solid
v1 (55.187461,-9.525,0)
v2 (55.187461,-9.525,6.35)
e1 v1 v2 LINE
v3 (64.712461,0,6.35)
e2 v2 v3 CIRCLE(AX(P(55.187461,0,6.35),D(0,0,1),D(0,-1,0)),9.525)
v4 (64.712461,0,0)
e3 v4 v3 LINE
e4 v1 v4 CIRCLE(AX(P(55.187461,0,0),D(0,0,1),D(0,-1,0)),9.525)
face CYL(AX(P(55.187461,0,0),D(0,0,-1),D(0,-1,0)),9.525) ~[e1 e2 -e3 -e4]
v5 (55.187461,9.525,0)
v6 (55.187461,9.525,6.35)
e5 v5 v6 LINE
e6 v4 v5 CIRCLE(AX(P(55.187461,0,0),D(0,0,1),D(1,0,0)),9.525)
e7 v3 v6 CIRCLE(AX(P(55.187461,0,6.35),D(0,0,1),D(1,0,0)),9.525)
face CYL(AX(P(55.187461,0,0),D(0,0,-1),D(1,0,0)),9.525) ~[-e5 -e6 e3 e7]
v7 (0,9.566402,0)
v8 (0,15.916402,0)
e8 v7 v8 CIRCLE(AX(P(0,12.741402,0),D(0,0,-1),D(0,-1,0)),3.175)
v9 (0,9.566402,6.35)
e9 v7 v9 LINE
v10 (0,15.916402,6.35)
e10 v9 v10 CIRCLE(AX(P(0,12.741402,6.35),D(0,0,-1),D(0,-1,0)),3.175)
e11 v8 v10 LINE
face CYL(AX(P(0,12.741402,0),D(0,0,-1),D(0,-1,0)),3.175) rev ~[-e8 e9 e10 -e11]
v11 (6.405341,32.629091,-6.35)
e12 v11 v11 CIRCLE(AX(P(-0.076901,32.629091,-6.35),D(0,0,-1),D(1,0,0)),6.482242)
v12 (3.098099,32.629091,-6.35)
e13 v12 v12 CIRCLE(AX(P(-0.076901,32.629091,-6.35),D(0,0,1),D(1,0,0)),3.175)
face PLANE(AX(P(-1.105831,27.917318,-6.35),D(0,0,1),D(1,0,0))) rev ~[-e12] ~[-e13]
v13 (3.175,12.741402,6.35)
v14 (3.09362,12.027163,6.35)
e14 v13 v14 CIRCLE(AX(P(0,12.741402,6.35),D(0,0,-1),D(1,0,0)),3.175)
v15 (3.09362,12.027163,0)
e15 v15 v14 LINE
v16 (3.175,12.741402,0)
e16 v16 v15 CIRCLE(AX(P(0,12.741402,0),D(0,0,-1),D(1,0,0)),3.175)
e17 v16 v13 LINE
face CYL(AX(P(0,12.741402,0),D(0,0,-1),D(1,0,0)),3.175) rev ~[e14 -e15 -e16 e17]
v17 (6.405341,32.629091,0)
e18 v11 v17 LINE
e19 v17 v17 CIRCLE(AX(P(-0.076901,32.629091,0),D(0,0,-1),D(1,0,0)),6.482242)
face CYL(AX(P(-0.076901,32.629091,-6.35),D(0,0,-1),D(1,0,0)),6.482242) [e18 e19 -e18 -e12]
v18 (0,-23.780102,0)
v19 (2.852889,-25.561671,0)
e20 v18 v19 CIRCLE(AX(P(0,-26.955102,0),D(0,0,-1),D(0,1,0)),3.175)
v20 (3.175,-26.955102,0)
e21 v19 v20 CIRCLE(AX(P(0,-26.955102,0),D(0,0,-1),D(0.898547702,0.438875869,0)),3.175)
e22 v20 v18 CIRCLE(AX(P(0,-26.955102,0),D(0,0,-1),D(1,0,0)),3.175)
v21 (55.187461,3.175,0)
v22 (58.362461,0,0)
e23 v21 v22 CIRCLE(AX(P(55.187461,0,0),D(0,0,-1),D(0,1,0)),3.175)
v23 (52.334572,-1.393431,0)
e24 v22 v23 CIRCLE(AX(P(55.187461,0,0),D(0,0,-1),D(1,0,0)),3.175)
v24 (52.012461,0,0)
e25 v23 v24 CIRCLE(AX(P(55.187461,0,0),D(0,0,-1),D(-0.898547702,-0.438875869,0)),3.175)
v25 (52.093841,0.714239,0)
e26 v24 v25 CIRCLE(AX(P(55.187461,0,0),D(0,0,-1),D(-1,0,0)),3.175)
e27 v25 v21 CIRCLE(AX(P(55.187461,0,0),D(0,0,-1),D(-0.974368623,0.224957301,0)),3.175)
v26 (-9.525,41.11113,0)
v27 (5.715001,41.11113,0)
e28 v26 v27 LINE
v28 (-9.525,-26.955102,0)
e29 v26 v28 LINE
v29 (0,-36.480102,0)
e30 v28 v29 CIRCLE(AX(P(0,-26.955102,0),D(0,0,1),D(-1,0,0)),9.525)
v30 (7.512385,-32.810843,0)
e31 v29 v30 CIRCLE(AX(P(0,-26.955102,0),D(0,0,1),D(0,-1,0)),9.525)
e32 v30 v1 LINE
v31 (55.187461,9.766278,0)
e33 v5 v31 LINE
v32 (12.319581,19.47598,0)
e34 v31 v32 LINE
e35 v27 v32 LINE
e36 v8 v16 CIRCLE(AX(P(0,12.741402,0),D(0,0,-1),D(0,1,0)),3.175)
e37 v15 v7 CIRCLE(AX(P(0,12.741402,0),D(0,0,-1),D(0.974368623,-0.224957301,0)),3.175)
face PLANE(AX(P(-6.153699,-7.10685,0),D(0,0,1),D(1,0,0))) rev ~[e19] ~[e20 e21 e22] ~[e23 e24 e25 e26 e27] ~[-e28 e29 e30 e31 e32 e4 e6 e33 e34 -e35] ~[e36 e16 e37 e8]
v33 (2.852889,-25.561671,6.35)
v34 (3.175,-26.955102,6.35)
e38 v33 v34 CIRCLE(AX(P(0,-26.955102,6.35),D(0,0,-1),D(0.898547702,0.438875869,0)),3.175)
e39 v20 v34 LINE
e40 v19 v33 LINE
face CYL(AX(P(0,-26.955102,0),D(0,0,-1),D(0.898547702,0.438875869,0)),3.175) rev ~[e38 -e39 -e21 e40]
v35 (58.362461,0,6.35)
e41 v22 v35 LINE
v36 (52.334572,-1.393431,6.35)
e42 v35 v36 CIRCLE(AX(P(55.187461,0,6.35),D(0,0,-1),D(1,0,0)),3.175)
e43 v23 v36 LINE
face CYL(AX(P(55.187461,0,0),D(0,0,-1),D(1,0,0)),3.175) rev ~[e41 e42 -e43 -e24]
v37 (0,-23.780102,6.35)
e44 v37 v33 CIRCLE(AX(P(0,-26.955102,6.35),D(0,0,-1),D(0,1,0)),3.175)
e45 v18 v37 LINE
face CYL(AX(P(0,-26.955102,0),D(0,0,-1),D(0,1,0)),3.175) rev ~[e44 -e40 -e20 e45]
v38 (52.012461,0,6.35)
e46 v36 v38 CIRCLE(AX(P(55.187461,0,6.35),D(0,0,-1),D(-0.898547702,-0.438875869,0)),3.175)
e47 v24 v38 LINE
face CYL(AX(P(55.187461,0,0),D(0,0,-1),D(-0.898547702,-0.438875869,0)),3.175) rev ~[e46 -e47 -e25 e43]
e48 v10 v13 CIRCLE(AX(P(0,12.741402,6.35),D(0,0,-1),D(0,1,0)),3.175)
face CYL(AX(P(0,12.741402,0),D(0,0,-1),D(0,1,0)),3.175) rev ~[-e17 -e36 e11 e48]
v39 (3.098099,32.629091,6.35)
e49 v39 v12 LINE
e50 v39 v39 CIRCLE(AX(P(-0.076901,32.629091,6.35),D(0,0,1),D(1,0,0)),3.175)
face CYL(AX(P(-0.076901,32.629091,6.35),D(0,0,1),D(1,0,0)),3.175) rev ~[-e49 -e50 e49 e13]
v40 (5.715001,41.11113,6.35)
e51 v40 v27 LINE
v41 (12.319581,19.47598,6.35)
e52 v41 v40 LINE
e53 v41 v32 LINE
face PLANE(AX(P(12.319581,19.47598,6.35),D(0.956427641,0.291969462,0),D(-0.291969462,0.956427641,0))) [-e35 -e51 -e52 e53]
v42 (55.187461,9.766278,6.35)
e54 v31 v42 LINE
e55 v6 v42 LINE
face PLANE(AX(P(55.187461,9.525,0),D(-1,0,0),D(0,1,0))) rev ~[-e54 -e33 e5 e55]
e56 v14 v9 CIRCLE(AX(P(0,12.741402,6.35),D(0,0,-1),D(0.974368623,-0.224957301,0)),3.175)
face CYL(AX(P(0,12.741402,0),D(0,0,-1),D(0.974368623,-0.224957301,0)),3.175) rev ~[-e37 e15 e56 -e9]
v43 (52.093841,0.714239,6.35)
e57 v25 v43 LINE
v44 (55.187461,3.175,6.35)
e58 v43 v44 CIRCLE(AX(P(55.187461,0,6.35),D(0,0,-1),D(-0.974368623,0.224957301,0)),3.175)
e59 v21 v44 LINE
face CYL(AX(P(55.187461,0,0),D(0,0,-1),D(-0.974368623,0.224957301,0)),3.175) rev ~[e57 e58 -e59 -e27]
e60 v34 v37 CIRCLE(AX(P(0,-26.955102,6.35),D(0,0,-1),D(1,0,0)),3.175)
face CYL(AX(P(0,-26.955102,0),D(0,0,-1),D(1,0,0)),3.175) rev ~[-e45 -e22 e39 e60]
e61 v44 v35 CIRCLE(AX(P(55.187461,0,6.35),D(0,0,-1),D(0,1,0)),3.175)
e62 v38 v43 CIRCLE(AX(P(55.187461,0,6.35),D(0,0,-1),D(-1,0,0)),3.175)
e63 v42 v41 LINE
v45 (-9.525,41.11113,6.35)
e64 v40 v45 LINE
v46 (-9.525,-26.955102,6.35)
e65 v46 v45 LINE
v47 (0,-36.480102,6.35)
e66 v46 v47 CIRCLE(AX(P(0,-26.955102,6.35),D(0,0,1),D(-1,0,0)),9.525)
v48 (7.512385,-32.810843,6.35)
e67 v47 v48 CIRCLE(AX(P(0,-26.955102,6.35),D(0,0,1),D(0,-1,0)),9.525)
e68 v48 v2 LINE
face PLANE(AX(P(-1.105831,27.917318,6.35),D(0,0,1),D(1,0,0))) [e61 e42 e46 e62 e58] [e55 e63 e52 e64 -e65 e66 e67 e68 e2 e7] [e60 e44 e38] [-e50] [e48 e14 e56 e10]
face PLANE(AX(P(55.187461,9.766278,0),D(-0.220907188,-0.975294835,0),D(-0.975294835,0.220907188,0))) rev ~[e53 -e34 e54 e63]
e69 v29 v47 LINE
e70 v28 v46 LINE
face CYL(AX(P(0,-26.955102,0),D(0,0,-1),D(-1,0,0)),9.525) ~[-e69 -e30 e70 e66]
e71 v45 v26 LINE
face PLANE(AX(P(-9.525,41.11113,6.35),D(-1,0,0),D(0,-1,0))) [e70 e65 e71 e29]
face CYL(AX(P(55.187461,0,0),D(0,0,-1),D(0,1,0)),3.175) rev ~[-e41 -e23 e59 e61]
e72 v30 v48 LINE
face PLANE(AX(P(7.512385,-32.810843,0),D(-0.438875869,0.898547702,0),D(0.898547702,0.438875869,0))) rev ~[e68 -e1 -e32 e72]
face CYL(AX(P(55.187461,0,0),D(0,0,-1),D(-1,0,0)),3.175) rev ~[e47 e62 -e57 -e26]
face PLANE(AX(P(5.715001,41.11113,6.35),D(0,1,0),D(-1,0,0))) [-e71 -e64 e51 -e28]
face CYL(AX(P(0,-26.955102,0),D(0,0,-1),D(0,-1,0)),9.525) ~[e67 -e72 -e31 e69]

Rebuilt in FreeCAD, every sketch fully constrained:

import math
import FreeCAD as App
import Part
import Sketcher
Q = App.Units.Quantity

doc = App.newDocument("Part")
body = doc.addObject("PartDesign::Body", "Body")

# Sketch on XY plane
sketch1 = body.newObject("Sketcher::SketchObject", "Sketch")
sketch1.AttachmentSupport = (doc.getObject("XY_Plane"), [""])
sketch1.MapMode = "FlatFace"
sketch1.addGeometry([
    Part.LineSegment(App.Vector(55.19, 9.53, 0), App.Vector(55.19, 9.77, 0)),  # 0
    Part.LineSegment(App.Vector(55.19, 9.77, 0), App.Vector(4.1, 21.34, 0)),  # 1
    Part.ArcOfCircle(Part.Circle(App.Vector(0, 12.74, 0), App.Vector(0, 0, 1), 9.53), math.radians(64), math.radians(90)),  # 2
    Part.ArcOfCircle(Part.Circle(App.Vector(0, 12.74, 0), App.Vector(0, 0, 1), 9.53), math.radians(90), math.radians(180)),  # 3
    Part.LineSegment(App.Vector(-9.53, 12.74, 0), App.Vector(-9.53, -26.96, 0)),  # 4
    Part.ArcOfCircle(Part.Circle(App.Vector(0, -26.96, 0), App.Vector(0, 0, 1), 9.53), math.radians(180), math.radians(270)),  # 5
    Part.ArcOfCircle(Part.Circle(App.Vector(0, -26.96, 0), App.Vector(0, 0, 1), 9.53), math.radians(-90), math.radians(-38)),  # 6
    Part.LineSegment(App.Vector(7.51, -32.81, 0), App.Vector(55.19, -9.53, 0)),  # 7
    Part.ArcOfCircle(Part.Circle(App.Vector(55.19, 0, 0), App.Vector(0, 0, 1), 9.53), math.radians(-90), math.radians(0)),  # 8
    Part.ArcOfCircle(Part.Circle(App.Vector(55.19, 0, 0), App.Vector(0, 0, 1), 9.53), math.radians(0), math.radians(90)),  # 9
    Part.ArcOfCircle(Part.Circle(App.Vector(0, 12.74, 0), App.Vector(0, 0, 1), 3.17), math.radians(90), math.radians(270)),  # 10
    Part.ArcOfCircle(Part.Circle(App.Vector(0, 12.74, 0), App.Vector(0, 0, 1), 3.17), math.radians(0), math.radians(90)),  # 11
    Part.ArcOfCircle(Part.Circle(App.Vector(0, 12.74, 0), App.Vector(0, 0, 1), 3.17), math.radians(-13), math.radians(0)),  # 12
    Part.ArcOfCircle(Part.Circle(App.Vector(0, 12.74, 0), App.Vector(0, 0, 1), 3.17), math.radians(-90), math.radians(-13)),  # 13
    Part.ArcOfCircle(Part.Circle(App.Vector(55.19, 0, 0), App.Vector(0, 0, 1), 3.17), math.radians(90), math.radians(167)),  # 14
    Part.ArcOfCircle(Part.Circle(App.Vector(55.19, 0, 0), App.Vector(0, 0, 1), 3.17), math.radians(0), math.radians(90)),  # 15
    Part.ArcOfCircle(Part.Circle(App.Vector(55.19, 0, 0), App.Vector(0, 0, 1), 3.17), math.radians(-154), math.radians(0)),  # 16
    Part.ArcOfCircle(Part.Circle(App.Vector(55.19, 0, 0), App.Vector(0, 0, 1), 3.17), math.radians(180), math.radians(206)),  # 17
    Part.ArcOfCircle(Part.Circle(App.Vector(55.19, 0, 0), App.Vector(0, 0, 1), 3.17), math.radians(167), math.radians(180)),  # 18
    Part.ArcOfCircle(Part.Circle(App.Vector(0, -26.96, 0), App.Vector(0, 0, 1), 3.17), math.radians(0), math.radians(26)),  # 19
    Part.ArcOfCircle(Part.Circle(App.Vector(0, -26.96, 0), App.Vector(0, 0, 1), 3.17), math.radians(90), math.radians(360)),  # 20
    Part.ArcOfCircle(Part.Circle(App.Vector(0, -26.96, 0), App.Vector(0, 0, 1), 3.17), math.radians(26), math.radians(90)),  # 21
], False)
sketch1.addConstraint([
    Sketcher.Constraint("Coincident", 0, 2, 1, 1),
    Sketcher.Constraint("Coincident", 1, 2, 2, 1),
    Sketcher.Constraint("Tangent", 2, 2, 3, 1),
    Sketcher.Constraint("Tangent", 3, 2, 4, 1),
    Sketcher.Constraint("Tangent", 4, 2, 5, 1),
    Sketcher.Constraint("Tangent", 5, 2, 6, 1),
    Sketcher.Constraint("Coincident", 6, 2, 7, 1),
    Sketcher.Constraint("Coincident", 7, 2, 8, 1),
    Sketcher.Constraint("Tangent", 8, 2, 9, 1),
    Sketcher.Constraint("Coincident", 9, 2, 0, 1),
    Sketcher.Constraint("Tangent", 10, 1, 11, 2),
    Sketcher.Constraint("Tangent", 11, 1, 12, 2),
    Sketcher.Constraint("Tangent", 12, 1, 13, 2),
    Sketcher.Constraint("Tangent", 13, 1, 10, 2),
    Sketcher.Constraint("Tangent", 14, 1, 15, 2),
    Sketcher.Constraint("Tangent", 15, 1, 16, 2),
    Sketcher.Constraint("Tangent", 16, 1, 17, 2),
    Sketcher.Constraint("Tangent", 17, 1, 18, 2),
    Sketcher.Constraint("Tangent", 18, 1, 14, 2),
    Sketcher.Constraint("Tangent", 19, 1, 20, 2),
    Sketcher.Constraint("Tangent", 20, 1, 21, 2),
    Sketcher.Constraint("Tangent", 21, 1, 19, 2),
    Sketcher.Constraint("Vertical", 0),
    Sketcher.Constraint("Vertical", 4),
    Sketcher.Constraint("Coincident", 10, 3, 2, 3),
    Sketcher.Constraint("Coincident", 14, 3, 8, 3),
    Sketcher.Constraint("Coincident", 16, 3, 8, 3),
    Sketcher.Constraint("Coincident", 19, 3, 5, 3),
    Sketcher.Constraint("Equal", 2, 3),
    Sketcher.Constraint("Equal", 3, 5),
    Sketcher.Constraint("Equal", 5, 6),
    Sketcher.Constraint("Equal", 6, 8),
    Sketcher.Constraint("Equal", 8, 9),
    Sketcher.Constraint("Equal", 10, 11),
    Sketcher.Constraint("Equal", 13, 14),
    Sketcher.Constraint("Equal", 18, 19),
    Sketcher.Constraint("Symmetric", 7, 2, 9, 2, -1),
    Sketcher.Constraint("PointOnObject", 2, 3, -2),
    Sketcher.Constraint("PointOnObject", 2, 2, -2),
    Sketcher.Constraint("PointOnObject", 5, 2, -2),
    Sketcher.Constraint("PointOnObject", 8, 2, -1),
    Sketcher.Constraint("PointOnObject", 10, 1, -2),
    Sketcher.Constraint("PointOnObject", 13, 1, -2),
    Sketcher.Constraint("PointOnObject", 15, 1, -1),
    Sketcher.Constraint("PointOnObject", 17, 1, -1),
    Sketcher.Constraint("PointOnObject", 20, 1, -2),
    Sketcher.Constraint("Horizontal", 3, 2, 11, 1),
    Sketcher.Constraint("Horizontal", 4, 2, 19, 1),
    Sketcher.Constraint("Vertical", 18, 3, 0, 2),
    Sketcher.Constraint("Vertical", 9, 2, 14, 1),
    Sketcher.Constraint("Radius", 2, Q("0.375 in")),
    Sketcher.Constraint("Radius", 10, Q("0.125 in")),
    Sketcher.Constraint("DistanceY", 12, 3, 1, 2, Q("0.3384 in")),
    Sketcher.Constraint("DistanceY", -1, 1, 2, 3, 12.741402),
    Sketcher.Constraint("Distance", 1, 52.377131),
    Sketcher.Constraint("DistanceY", 0, 1, 0, 2, 0.241278),
    Sketcher.Constraint("DistanceY", 4, 2, 4, 1, 39.696504),
    Sketcher.Constraint("DistanceX", -1, 1, 12, 1, 3.09362),
    Sketcher.Constraint("DistanceY", 16, 1, -1, 1, 1.393431),
    Sketcher.Constraint("DistanceX", -1, 1, 18, 1, 52.093841),
    Sketcher.Constraint("DistanceX", -1, 1, 21, 1, 2.852889),
    Sketcher.Constraint("DistanceY", 5, 2, 6, 2, 3.669259),
])
pad1 = body.newObject("PartDesign::Pad", "Pad")
pad1.Profile = sketch1
pad1.Length = Q("0.25 in")

# Sketch on XY plane
sketch2 = body.newObject("Sketcher::SketchObject", "Sketch001")
sketch2.AttachmentSupport = (doc.getObject("XY_Plane"), [""])
sketch2.MapMode = "FlatFace"
sketch2.AttachmentOffset = App.Placement(App.Vector(0, 0, 0.25 * 25.4), App.Rotation())
sketch2.addGeometry([
    Part.LineSegment(App.Vector(-9.5, 41.1, 0), App.Vector(-9.5, 12.7, 0)),  # 0
    Part.ArcOfCircle(Part.Circle(App.Vector(0, 12.7, 0), App.Vector(0, 0, 1), 9.5), math.radians(64), math.radians(180)),  # 1
    Part.LineSegment(App.Vector(4.1, 21.3, 0), App.Vector(12.3, 19.5, 0)),  # 2
    Part.LineSegment(App.Vector(12.3, 19.5, 0), App.Vector(5.7, 41.1, 0)),  # 3
    Part.LineSegment(App.Vector(5.7, 41.1, 0), App.Vector(-9.5, 41.1, 0)),  # 4
    Part.Circle(App.Vector(-0.1, 32.6, 0), App.Vector(0, 0, 1), 3.2),  # 5
], False)
sketch2.addConstraint([
    Sketcher.Constraint("Tangent", 0, 2, 1, 2),
    Sketcher.Constraint("Coincident", 1, 1, 2, 1),
    Sketcher.Constraint("Coincident", 2, 2, 3, 1),
    Sketcher.Constraint("Coincident", 3, 2, 4, 1),
    Sketcher.Constraint("Coincident", 4, 2, 0, 1),
    Sketcher.Constraint("Vertical", 0),
    Sketcher.Constraint("Horizontal", 4),
    Sketcher.Constraint("PointOnObject", 1, 3, -2),
    Sketcher.Constraint("Diameter", 5, Q("0.25 in")),
    Sketcher.Constraint("DistanceX", 4, 2, 4, 1, Q("0.6 in")),
    Sketcher.Constraint("Radius", 1, Q("0.375 in")),
    Sketcher.Constraint("DistanceY", 1, 3, 1, 1, Q("0.3384 in")),
    Sketcher.Constraint("DistanceY", 0, 2, 0, 1, 28.369728),
    Sketcher.Constraint("DistanceX", 5, 3, -1, 1, 0.076901),
    Sketcher.Constraint("Distance", 3, 22.620791),
    Sketcher.Constraint("DistanceY", -1, 1, 5, 3, 32.629091),
    Sketcher.Constraint("DistanceX", -1, 1, 2, 2, 12.319581),
    Sketcher.Constraint("DistanceY", -1, 1, 2, 2, 19.47598),
])
pad2 = body.newObject("PartDesign::Pad", "Pad001")
pad2.Profile = sketch2
pad2.Length = Q("0.5 in")
pad2.Reversed = True

# Sketch on XY plane
sketch3 = body.newObject("Sketcher::SketchObject", "Sketch002")
sketch3.AttachmentSupport = (doc.getObject("XY_Plane"), [""])
sketch3.MapMode = "FlatFace"
sketch3.AttachmentOffset = App.Placement(App.Vector(0, 0, -0.25 * 25.4), App.Rotation())
sketch3.addGeometry([
    Part.LineSegment(App.Vector(-10, 41, 0), App.Vector(6, 41, 0)),  # 0
    Part.LineSegment(App.Vector(6, 41, 0), App.Vector(12, 19, 0)),  # 1
    Part.LineSegment(App.Vector(12, 19, 0), App.Vector(4, 21, 0)),  # 2
    Part.ArcOfCircle(Part.Circle(App.Vector(0, 13, 0), App.Vector(0, 0, 1), 10), math.radians(64), math.radians(180)),  # 3
    Part.LineSegment(App.Vector(-10, 13, 0), App.Vector(-10, 41, 0)),  # 4
    Part.Circle(App.Vector(0, 33, 0), App.Vector(0, 0, 1), 6),  # 5
], False)
sketch3.addConstraint([
    Sketcher.Constraint("Coincident", 0, 2, 1, 1),
    Sketcher.Constraint("Coincident", 1, 2, 2, 1),
    Sketcher.Constraint("Coincident", 2, 2, 3, 1),
    Sketcher.Constraint("Tangent", 3, 2, 4, 1),
    Sketcher.Constraint("Coincident", 4, 2, 0, 1),
    Sketcher.Constraint("Horizontal", 0),
    Sketcher.Constraint("Vertical", 4),
    Sketcher.Constraint("PointOnObject", 3, 3, -2),
    Sketcher.Constraint("DistanceX", 0, 1, 0, 2, Q("0.6 in")),
    Sketcher.Constraint("Radius", 3, Q("0.375 in")),
    Sketcher.Constraint("Diameter", 5, 12.964484),
    Sketcher.Constraint("DistanceY", 3, 3, 2, 2, Q("0.3384 in")),
    Sketcher.Constraint("DistanceY", 4, 1, 4, 2, 28.369728),
    Sketcher.Constraint("DistanceX", 5, 3, -1, 1, 0.076901),
    Sketcher.Constraint("Distance", 1, 22.620791),
    Sketcher.Constraint("DistanceY", -1, 1, 5, 3, 32.629091),
    Sketcher.Constraint("DistanceY", -1, 1, 0, 2, 41.11113),
    Sketcher.Constraint("DistanceX", -1, 1, 1, 2, 12.319581),
])
pocket1 = body.newObject("PartDesign::Pocket", "Pocket")
pocket1.Profile = sketch3
pocket1.Length = Q("0.25 in")
pocket1.Reversed = True

doc.recompute()
